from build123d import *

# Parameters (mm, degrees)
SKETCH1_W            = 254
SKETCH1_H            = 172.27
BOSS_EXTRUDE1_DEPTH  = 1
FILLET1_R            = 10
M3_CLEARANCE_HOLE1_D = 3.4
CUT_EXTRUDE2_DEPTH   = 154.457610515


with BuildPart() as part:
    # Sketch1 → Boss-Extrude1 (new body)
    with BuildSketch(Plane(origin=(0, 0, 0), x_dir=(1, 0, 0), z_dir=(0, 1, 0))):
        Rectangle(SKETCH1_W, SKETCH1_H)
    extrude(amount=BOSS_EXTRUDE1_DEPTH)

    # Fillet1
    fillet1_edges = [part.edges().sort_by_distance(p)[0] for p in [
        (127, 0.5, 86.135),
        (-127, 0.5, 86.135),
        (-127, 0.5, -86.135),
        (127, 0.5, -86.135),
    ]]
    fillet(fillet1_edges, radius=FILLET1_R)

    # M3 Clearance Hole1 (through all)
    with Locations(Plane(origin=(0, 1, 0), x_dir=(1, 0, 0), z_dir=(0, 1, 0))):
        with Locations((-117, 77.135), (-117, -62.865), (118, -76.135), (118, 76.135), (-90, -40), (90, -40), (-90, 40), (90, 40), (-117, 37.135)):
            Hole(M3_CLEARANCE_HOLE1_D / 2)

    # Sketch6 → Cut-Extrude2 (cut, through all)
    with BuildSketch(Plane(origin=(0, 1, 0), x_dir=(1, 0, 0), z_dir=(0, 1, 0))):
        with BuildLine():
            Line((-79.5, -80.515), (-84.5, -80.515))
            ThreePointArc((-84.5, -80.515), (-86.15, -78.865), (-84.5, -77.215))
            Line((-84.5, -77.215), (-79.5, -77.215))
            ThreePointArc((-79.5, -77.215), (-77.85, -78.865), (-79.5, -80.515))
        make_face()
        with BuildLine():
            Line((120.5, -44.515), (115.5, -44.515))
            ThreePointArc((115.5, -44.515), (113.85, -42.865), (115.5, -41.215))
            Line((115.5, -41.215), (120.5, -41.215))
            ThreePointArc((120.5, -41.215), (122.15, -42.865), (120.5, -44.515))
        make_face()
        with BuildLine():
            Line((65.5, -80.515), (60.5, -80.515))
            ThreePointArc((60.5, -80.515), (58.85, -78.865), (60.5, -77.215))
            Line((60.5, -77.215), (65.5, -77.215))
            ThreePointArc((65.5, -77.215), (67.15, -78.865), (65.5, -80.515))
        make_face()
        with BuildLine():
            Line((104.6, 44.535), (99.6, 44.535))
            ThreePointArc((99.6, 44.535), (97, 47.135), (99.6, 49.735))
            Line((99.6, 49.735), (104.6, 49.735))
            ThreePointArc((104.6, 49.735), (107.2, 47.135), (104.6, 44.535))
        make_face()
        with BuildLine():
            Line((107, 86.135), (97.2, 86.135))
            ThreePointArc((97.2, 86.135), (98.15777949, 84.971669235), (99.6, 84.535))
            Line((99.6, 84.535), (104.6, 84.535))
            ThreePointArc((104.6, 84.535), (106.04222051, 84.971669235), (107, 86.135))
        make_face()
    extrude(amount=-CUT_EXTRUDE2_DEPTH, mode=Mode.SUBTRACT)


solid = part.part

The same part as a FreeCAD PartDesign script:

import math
import FreeCAD as App
import Part
import Sketcher


def edges_at(feature, points):
    """Names of the edges that pass closest to the given points."""
    edges = feature.Shape.Edges
    near = lambda p: min(range(len(edges)), key=lambda i: edges[i].distToShape(Part.Vertex(*p))[0])
    return sorted({f"Edge{near(p) + 1}" for p in points})


def add_polygon(sketch, points):
    """Adds a closed chain of lines whose ends are joined by coincident constraints."""
    first, n = sketch.GeometryCount, len(points)
    for a, b in zip(points, points[1:] + points[:1]):
        sketch.addGeometry(Part.LineSegment(App.Vector(*a, 0), App.Vector(*b, 0)), False)
    for i in range(n):
        sketch.addConstraint(Sketcher.Constraint("Coincident", first + i, 2, first + (i + 1) % n, 1))

doc = App.newDocument("Part")
params = doc.addObject("Spreadsheet::Sheet", "Params")
for row, (alias, value) in enumerate([
    ("sketch1_width", "254 mm"),
    ("sketch1_height", "172.27 mm"),
    ("pad1_length", "1 mm"),
    ("fillet_radius", "10 mm"),
    ("sketch2_diameter", "3.4 mm"),
    ("hole_diameter", "3.4 mm"),
    ("sketch3_radius", "2.6 mm"),
    ("sketch3_width", "5 mm"),
    ("sketch3_radius2", "1.65 mm"),
    ("sketch3_width2", "9.8 mm"),
], start=1):
    params.set(f"A{row}", alias)
    params.set(f"B{row}", "=" + value)
    params.setAlias(f"B{row}", alias)

body = doc.addObject("PartDesign::Body", "Body")

# Sketch on XZ plane
sketch1 = doc.addObject("Sketcher::SketchObject", "Sketch")
body.addObject(sketch1)
sketch1.AttachmentSupport = (doc.XZ_Plane, [""])
sketch1.MapMode = "FlatFace"
add_polygon(sketch1, [(-127, -86), (-127, 86), (127, 86), (127, -86)])  # lines 0-3
sketch1.addConstraint([
    Sketcher.Constraint("Vertical", 0),
    Sketcher.Constraint("Horizontal", 1),
    Sketcher.Constraint("Vertical", 2),
    Sketcher.Constraint("Horizontal", 3),
    Sketcher.Constraint("Symmetric", 0, 2, 2, 2, -1, 1),
    Sketcher.Constraint("DistanceX", 1, 1, 1, 2, 254.0),
    Sketcher.Constraint("DistanceY", 0, 1, 0, 2, 172.27),
])
sketch1.setExpression("Constraints[9]", "Params.sketch1_width")
sketch1.setExpression("Constraints[10]", "Params.sketch1_height")
pad1 = doc.addObject("PartDesign::Pad", "Pad")
body.addObject(pad1)
pad1.Profile = sketch1
pad1.setExpression("Length", "Params.pad1_length")
pad1.Reversed = True
doc.recompute()

fillet = doc.addObject("PartDesign::Fillet", "Fillet")
body.addObject(fillet)
fillet.Base = (pad1, edges_at(pad1, [
    (127, 0.5, 86.135),
    (-127, 0.5, 86.135),
    (-127, 0.5, -86.135),
    (127, 0.5, -86.135),
]))
fillet.setExpression("Radius", "Params.fillet_radius")

# Sketch on XZ plane
sketch2 = doc.addObject("Sketcher::SketchObject", "Sketch001")
body.addObject(sketch2)
sketch2.AttachmentSupport = (doc.XZ_Plane, [""])
sketch2.MapMode = "FlatFace"
sketch2.AttachmentOffset = App.Placement(App.Vector(0, 0, -1), App.Rotation())
sketch2.addGeometry([
    Part.Circle(App.Vector(-117, -77.1, 0), App.Vector(0, 0, 1), 1.7),  # 0
    Part.Circle(App.Vector(-117, 62.9, 0), App.Vector(0, 0, 1), 1.7),  # 1
    Part.Circle(App.Vector(118, 76.1, 0), App.Vector(0, 0, 1), 1.7),  # 2
    Part.Circle(App.Vector(118, -76.1, 0), App.Vector(0, 0, 1), 1.7),  # 3
    Part.Circle(App.Vector(-90, 40, 0), App.Vector(0, 0, 1), 1.7),  # 4
    Part.Circle(App.Vector(90, 40, 0), App.Vector(0, 0, 1), 1.7),  # 5
    Part.Circle(App.Vector(-90, -40, 0), App.Vector(0, 0, 1), 1.7),  # 6
    Part.Circle(App.Vector(90, -40, 0), App.Vector(0, 0, 1), 1.7),  # 7
    Part.Circle(App.Vector(-117, -37.1, 0), App.Vector(0, 0, 1), 1.7),  # 8
], False)
sketch2.addConstraint([
    Sketcher.Constraint("Equal", 0, 1),
    Sketcher.Constraint("Equal", 1, 2),
    Sketcher.Constraint("Equal", 2, 3),
    Sketcher.Constraint("Equal", 3, 4),
    Sketcher.Constraint("Equal", 4, 5),
    Sketcher.Constraint("Equal", 5, 6),
    Sketcher.Constraint("Equal", 6, 7),
    Sketcher.Constraint("Equal", 7, 8),
    Sketcher.Constraint("Symmetric", 5, 3, 6, 3, -1, 1),
    Sketcher.Constraint("Symmetric", 4, 3, 7, 3, -1, 1),
    Sketcher.Constraint("Symmetric", 4, 3, 5, 3, -2),
    Sketcher.Constraint("Symmetric", 2, 3, 3, 3, -1),
    Sketcher.Constraint("Vertical", 0, 3, 1, 3),
    Sketcher.Constraint("Vertical", 1, 3, 8, 3),
    Sketcher.Constraint("Diameter", 0, 3.4),
    Sketcher.Constraint("DistanceX", 0, 3, -1, 1, 117.0),
    Sketcher.Constraint("DistanceX", -1, 1, 2, 3, 118.0),
    Sketcher.Constraint("DistanceX", 4, 3, -1, 1, 90.0),
    Sketcher.Constraint("DistanceY", -1, 1, 4, 3, 40.0),
    Sketcher.Constraint("DistanceY", 0, 3, 1, 3, 140.0),
    Sketcher.Constraint("DistanceY", 0, 3, 3, 3, 1.0),
    Sketcher.Constraint("DistanceY", 0, 3, 8, 3, 40.0),
    Sketcher.Constraint("DistanceY", 1, 3, 2, 3, 13.27),
])
sketch2.setExpression("Constraints[14]", "Params.sketch2_diameter")
doc.recompute()
hole = doc.addObject("PartDesign::Hole", "Hole")
body.addObject(hole)
hole.Profile = sketch2
hole.ThreadType = "None"
hole.setExpression("Diameter", "Params.hole_diameter")
hole.DepthType = "ThroughAll"
hole.Reversed = True

# Sketch on XZ plane
sketch3 = doc.addObject("Sketcher::SketchObject", "Sketch002")
body.addObject(sketch3)
sketch3.AttachmentSupport = (doc.XZ_Plane, [""])
sketch3.MapMode = "FlatFace"
sketch3.AttachmentOffset = App.Placement(App.Vector(0, 0, -1), App.Rotation())
sketch3.addGeometry([
    Part.LineSegment(App.Vector(-84.5, 80.5, 0), App.Vector(-79.5, 80.5, 0)),  # 0
    Part.ArcOfCircle(Part.Circle(App.Vector(-79.5, 78.9, 0), App.Vector(0, 0, 1), 1.6), math.radians(-90), math.radians(90)),  # 1
    Part.LineSegment(App.Vector(-79.5, 77.2, 0), App.Vector(-84.5, 77.2, 0)),  # 2
    Part.ArcOfCircle(Part.Circle(App.Vector(-84.5, 78.9, 0), App.Vector(0, 0, 1), 1.6), math.radians(90), math.radians(270)),  # 3
    Part.LineSegment(App.Vector(115.5, 44.5, 0), App.Vector(120.5, 44.5, 0)),  # 4
    Part.ArcOfCircle(Part.Circle(App.Vector(120.5, 42.9, 0), App.Vector(0, 0, 1), 1.6), math.radians(-90), math.radians(90)),  # 5
    Part.LineSegment(App.Vector(120.5, 41.2, 0), App.Vector(115.5, 41.2, 0)),  # 6
    Part.ArcOfCircle(Part.Circle(App.Vector(115.5, 42.9, 0), App.Vector(0, 0, 1), 1.6), math.radians(90), math.radians(270)),  # 7
    Part.LineSegment(App.Vector(60.5, 80.5, 0), App.Vector(65.5, 80.5, 0)),  # 8
    Part.ArcOfCircle(Part.Circle(App.Vector(65.5, 78.9, 0), App.Vector(0, 0, 1), 1.6), math.radians(-90), math.radians(90)),  # 9
    Part.LineSegment(App.Vector(65.5, 77.2, 0), App.Vector(60.5, 77.2, 0)),  # 10
    Part.ArcOfCircle(Part.Circle(App.Vector(60.5, 78.9, 0), App.Vector(0, 0, 1), 1.6), math.radians(90), math.radians(270)),  # 11
    Part.LineSegment(App.Vector(99.6, -44.5, 0), App.Vector(104.6, -44.5, 0)),  # 12
    Part.ArcOfCircle(Part.Circle(App.Vector(104.6, -47.1, 0), App.Vector(0, 0, 1), 2.6), math.radians(-90), math.radians(90)),  # 13
    Part.LineSegment(App.Vector(104.6, -49.7, 0), App.Vector(99.6, -49.7, 0)),  # 14
    Part.ArcOfCircle(Part.Circle(App.Vector(99.6, -47.1, 0), App.Vector(0, 0, 1), 2.6), math.radians(90), math.radians(270)),  # 15
    Part.LineSegment(App.Vector(107, -86.1, 0), App.Vector(97.2, -86.1, 0)),  # 16
    Part.ArcOfCircle(Part.Circle(App.Vector(99.6, -87.1, 0), App.Vector(0, 0, 1), 2.6), math.radians(90), math.radians(157)),  # 17
    Part.LineSegment(App.Vector(99.6, -84.5, 0), App.Vector(104.6, -84.5, 0)),  # 18
    Part.ArcOfCircle(Part.Circle(App.Vector(104.6, -87.1, 0), App.Vector(0, 0, 1), 2.6), math.radians(23), math.radians(90)),  # 19
], False)
sketch3.addConstraint([
    Sketcher.Constraint("Tangent", 0, 2, 1, 2),
    Sketcher.Constraint("Tangent", 1, 1, 2, 1),
    Sketcher.Constraint("Tangent", 2, 2, 3, 2),
    Sketcher.Constraint("Tangent", 3, 1, 0, 1),
    Sketcher.Constraint("Tangent", 4, 2, 5, 2),
    Sketcher.Constraint("Tangent", 5, 1, 6, 1),
    Sketcher.Constraint("Tangent", 6, 2, 7, 2),
    Sketcher.Constraint("Tangent", 7, 1, 4, 1),
    Sketcher.Constraint("Tangent", 8, 2, 9, 2),
    Sketcher.Constraint("Tangent", 9, 1, 10, 1),
    Sketcher.Constraint("Tangent", 10, 2, 11, 2),
    Sketcher.Constraint("Tangent", 11, 1, 8, 1),
    Sketcher.Constraint("Tangent", 12, 2, 13, 2),
    Sketcher.Constraint("Tangent", 13, 1, 14, 1),
    Sketcher.Constraint("Tangent", 14, 2, 15, 2),
    Sketcher.Constraint("Tangent", 15, 1, 12, 1),
    Sketcher.Constraint("Coincident", 16, 2, 17, 2),
    Sketcher.Constraint("Tangent", 17, 1, 18, 1),
    Sketcher.Constraint("Tangent", 18, 2, 19, 2),
    Sketcher.Constraint("Coincident", 19, 1, 16, 1),
    Sketcher.Constraint("Horizontal", 0),
    Sketcher.Constraint("Horizontal", 2),
    Sketcher.Constraint("Horizontal", 4),
    Sketcher.Constraint("Horizontal", 6),
    Sketcher.Constraint("Horizontal", 8),
    Sketcher.Constraint("Horizontal", 10),
    Sketcher.Constraint("Horizontal", 12),
    Sketcher.Constraint("Horizontal", 14),
    Sketcher.Constraint("Horizontal", 16),
    Sketcher.Constraint("Horizontal", 18),
    Sketcher.Constraint("Equal", 3, 5),
    Sketcher.Constraint("Equal", 7, 9),
    Sketcher.Constraint("Equal", 15, 17),
    Sketcher.Constraint("Equal", 17, 19),
    Sketcher.Constraint("Horizontal", 3, 3, 9, 3),
    Sketcher.Constraint("Vertical", 15, 3, 17, 3),
    Sketcher.Constraint("Vertical", 13, 3, 19, 3),
    Sketcher.Constraint("Equal", 2, 4),
    Sketcher.Constraint("Equal", 6, 8),
    Sketcher.Constraint("Equal", 10, 12),
    Sketcher.Constraint("Radius", 13, 2.6),
    Sketcher.Constraint("DistanceX", 0, 1, 0, 2, 5.0),
    Sketcher.Constraint("Radius", 1, 1.65),
    Sketcher.Constraint("DistanceX", 16, 2, 16, 1, 9.8),
    Sketcher.Constraint("DistanceX", -1, 1, 19, 1, 107.0),
    Sketcher.Constraint("DistanceX", 1, 3, 5, 3, 200.0),
    Sketcher.Constraint("DistanceY", 5, 3, 1, 3, 36.0),
    Sketcher.Constraint("DistanceX", 9, 3, 7, 3, 50.0),
    Sketcher.Constraint("DistanceY", 13, 3, 7, 3, 90.0),
    Sketcher.Constraint("DistanceY", 17, 3, 15, 3, 40.0),
    Sketcher.Constraint("DistanceX", 1, 3, -1, 1, 79.5),
    Sketcher.Constraint("DistanceY", -1, 1, 1, 3, 78.865),
])
sketch3.setExpression("Constraints[40]", "Params.sketch3_radius")
sketch3.setExpression("Constraints[41]", "Params.sketch3_width")
sketch3.setExpression("Constraints[42]", "Params.sketch3_radius2")
sketch3.setExpression("Constraints[43]", "Params.sketch3_width2")
pocket1 = doc.addObject("PartDesign::Pocket", "Pocket")
body.addObject(pocket1)
pocket1.Profile = sketch3
pocket1.Type = "ThroughAll"
pocket1.Reversed = True

doc.recompute()
